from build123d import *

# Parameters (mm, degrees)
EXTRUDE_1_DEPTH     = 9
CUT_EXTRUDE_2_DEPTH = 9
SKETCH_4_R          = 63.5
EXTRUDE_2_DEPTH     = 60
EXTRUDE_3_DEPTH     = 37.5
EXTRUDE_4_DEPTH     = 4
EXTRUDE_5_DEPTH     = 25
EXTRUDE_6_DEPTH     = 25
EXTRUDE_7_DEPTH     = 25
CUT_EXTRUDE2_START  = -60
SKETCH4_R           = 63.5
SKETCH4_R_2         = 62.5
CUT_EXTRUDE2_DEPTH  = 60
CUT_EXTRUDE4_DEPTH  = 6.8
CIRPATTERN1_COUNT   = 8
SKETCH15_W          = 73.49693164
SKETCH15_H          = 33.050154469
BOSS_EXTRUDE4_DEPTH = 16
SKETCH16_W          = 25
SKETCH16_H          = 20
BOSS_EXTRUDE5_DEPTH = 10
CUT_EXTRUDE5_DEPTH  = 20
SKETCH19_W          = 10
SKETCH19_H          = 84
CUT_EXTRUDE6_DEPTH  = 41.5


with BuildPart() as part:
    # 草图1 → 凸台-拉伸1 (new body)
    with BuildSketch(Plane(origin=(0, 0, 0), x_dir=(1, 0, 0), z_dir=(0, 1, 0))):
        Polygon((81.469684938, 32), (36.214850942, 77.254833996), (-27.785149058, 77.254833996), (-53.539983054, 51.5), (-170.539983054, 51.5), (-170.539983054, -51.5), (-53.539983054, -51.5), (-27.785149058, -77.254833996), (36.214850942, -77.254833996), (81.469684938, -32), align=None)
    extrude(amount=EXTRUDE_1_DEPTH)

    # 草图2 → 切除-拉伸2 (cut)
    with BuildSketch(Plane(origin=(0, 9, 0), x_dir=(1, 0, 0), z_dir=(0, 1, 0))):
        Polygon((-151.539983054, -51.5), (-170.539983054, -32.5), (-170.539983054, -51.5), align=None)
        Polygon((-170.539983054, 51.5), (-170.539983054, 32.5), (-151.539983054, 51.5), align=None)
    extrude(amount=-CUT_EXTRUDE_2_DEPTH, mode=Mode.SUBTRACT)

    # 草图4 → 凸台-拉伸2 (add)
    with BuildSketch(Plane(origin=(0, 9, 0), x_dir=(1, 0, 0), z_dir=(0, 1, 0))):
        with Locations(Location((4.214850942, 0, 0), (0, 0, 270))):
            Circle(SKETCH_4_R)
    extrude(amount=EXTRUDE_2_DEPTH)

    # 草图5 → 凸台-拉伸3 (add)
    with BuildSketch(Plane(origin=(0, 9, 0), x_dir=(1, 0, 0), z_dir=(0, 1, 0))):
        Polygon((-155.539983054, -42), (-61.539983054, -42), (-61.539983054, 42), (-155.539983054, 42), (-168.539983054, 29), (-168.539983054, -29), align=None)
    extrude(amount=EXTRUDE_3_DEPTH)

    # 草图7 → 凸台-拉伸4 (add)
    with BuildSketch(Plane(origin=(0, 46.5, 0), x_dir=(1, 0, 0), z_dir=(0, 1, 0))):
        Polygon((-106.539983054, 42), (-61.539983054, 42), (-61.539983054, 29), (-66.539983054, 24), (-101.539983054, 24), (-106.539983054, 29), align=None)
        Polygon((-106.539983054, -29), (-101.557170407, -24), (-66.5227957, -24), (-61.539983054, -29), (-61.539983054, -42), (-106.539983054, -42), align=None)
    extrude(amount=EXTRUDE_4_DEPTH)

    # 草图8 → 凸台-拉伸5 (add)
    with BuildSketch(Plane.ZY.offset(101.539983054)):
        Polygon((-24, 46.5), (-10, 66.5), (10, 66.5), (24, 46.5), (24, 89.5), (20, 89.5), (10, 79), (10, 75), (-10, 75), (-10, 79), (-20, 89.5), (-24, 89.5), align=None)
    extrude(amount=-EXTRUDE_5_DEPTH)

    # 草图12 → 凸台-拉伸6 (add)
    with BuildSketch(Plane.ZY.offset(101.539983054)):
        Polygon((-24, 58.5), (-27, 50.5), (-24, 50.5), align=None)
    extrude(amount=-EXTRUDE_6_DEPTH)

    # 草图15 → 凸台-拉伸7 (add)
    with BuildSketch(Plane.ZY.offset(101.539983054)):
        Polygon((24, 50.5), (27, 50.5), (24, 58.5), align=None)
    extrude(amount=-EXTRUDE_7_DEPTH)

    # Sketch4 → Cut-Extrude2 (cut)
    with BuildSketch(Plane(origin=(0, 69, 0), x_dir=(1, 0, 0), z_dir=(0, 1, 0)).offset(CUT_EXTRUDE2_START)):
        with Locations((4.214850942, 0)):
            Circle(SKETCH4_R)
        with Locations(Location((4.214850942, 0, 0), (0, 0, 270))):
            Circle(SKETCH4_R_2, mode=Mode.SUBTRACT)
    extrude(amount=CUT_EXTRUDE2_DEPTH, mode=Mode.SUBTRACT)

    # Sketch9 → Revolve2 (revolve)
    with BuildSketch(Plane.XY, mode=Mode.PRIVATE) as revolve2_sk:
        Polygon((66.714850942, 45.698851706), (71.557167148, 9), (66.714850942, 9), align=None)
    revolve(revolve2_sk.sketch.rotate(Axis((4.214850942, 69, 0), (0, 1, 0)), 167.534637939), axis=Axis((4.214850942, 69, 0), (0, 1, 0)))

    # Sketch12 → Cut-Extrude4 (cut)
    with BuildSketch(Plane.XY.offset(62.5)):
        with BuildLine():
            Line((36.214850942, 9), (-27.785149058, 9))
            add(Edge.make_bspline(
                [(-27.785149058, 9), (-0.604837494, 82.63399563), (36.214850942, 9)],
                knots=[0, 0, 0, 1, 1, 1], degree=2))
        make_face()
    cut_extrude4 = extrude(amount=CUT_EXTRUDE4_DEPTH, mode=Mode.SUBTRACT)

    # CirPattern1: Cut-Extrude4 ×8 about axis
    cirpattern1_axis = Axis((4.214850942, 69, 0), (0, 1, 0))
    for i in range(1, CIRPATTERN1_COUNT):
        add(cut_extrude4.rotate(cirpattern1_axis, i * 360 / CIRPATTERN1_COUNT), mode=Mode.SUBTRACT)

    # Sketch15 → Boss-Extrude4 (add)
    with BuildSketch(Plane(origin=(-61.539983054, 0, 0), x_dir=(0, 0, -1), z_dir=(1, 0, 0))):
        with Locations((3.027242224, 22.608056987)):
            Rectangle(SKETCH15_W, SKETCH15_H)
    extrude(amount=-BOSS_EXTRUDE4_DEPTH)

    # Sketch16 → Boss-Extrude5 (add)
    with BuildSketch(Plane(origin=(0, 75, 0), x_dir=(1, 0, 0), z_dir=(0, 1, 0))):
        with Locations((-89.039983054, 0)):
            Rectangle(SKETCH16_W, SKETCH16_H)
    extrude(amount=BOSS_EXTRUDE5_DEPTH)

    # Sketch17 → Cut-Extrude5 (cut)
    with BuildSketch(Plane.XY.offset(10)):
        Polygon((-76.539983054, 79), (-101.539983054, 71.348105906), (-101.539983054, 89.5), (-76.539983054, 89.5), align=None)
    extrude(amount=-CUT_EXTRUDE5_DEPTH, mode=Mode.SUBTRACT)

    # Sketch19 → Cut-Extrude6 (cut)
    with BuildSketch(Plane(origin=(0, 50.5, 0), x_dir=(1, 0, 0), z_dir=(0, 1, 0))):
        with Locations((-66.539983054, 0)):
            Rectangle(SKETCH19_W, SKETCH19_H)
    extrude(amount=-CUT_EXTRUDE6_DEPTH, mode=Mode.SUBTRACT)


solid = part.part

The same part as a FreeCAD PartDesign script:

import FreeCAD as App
import Part
import Sketcher

V = App.Vector
Q = App.Units.Quantity


def add_polygon(sketch, points):
    """Adds a closed chain of lines whose ends are joined by coincident constraints."""
    first, n = sketch.GeometryCount, len(points)
    for a, b in zip(points, points[1:] + points[:1]):
        sketch.addGeometry(Part.LineSegment(App.Vector(*a, 0), App.Vector(*b, 0)), False)
    for i in range(n):
        sketch.addConstraint(Sketcher.Constraint("Coincident", first + i, 2, first + (i + 1) % n, 1))

doc = App.newDocument("Part")
body = doc.addObject("PartDesign::Body", "Body")

sketch1 = body.newObject("Sketcher::SketchObject", "Sketch")
sketch1.AttachmentSupport = (doc.getObject("XZ_Plane"), [""])
sketch1.MapMode = "FlatFace"
add_polygon(sketch1, [(81, -32), (36, -77), (-28, -77), (-54, -52), (-171, -52), (-171, 52), (-54, 52), (-28, 77), (36, 77), (81, 32)])
sketch1.addConstraint(Sketcher.Constraint("Horizontal", 1))
sketch1.addConstraint(Sketcher.Constraint("Horizontal", 3))
sketch1.addConstraint(Sketcher.Constraint("Vertical", 4))
sketch1.addConstraint(Sketcher.Constraint("Horizontal", 5))
sketch1.addConstraint(Sketcher.Constraint("Horizontal", 7))
sketch1.addConstraint(Sketcher.Constraint("Vertical", 9))
sketch1.addConstraint(Sketcher.Constraint("Symmetric", 2, 2, 5, 2, -1))
sketch1.addConstraint(Sketcher.Constraint("Symmetric", 1, 2, 6, 2, -1))
sketch1.addConstraint(Sketcher.Constraint("Perpendicular", 0, 2))
sketch1.addConstraint(Sketcher.Constraint("Perpendicular", 2, 6))
sketch1.addConstraint(Sketcher.Constraint("Perpendicular", 6, 8))
sketch1.addConstraint(Sketcher.Constraint("Vertical", 0, 2, 7, 2))
sketch1.addConstraint(Sketcher.Constraint("Equal", 7, 9))
sketch1.addConstraint(Sketcher.Constraint("DistanceX", 1, 2, 1, 1, Q("64 mm")))
sketch1.addConstraint(Sketcher.Constraint("DistanceX", 3, 2, 3, 1, Q("117 mm")))
sketch1.addConstraint(Sketcher.Constraint("DistanceY", 4, 1, 4, 2, Q("103 mm")))
sketch1.addConstraint(Sketcher.Constraint("Distance", 0, Q("64 mm")))
sketch1.addConstraint(Sketcher.Constraint("DistanceX", -1, 1, 0, 2, Q("36.214851 mm")))
pad1 = body.newObject("PartDesign::Pad", "Pad")
pad1.Profile = sketch1
pad1.Length = 9
pad1.Reversed = True

sketch2 = body.newObject("Sketcher::SketchObject", "Sketch001")
sketch2.AttachmentSupport = (doc.getObject("XZ_Plane"), [""])
sketch2.MapMode = "FlatFace"
sketch2.AttachmentOffset = App.Placement(V(0, 0, -9), App.Rotation())
add_polygon(sketch2, [(-152, 52), (-171, 32), (-171, 52)])
add_polygon(sketch2, [(-171, -52), (-171, -32), (-152, -52)])
sketch2.addConstraint(Sketcher.Constraint("Vertical", 1))
sketch2.addConstraint(Sketcher.Constraint("Horizontal", 2))
sketch2.addConstraint(Sketcher.Constraint("Vertical", 3))
sketch2.addConstraint(Sketcher.Constraint("Horizontal", 5))
sketch2.addConstraint(Sketcher.Constraint("Symmetric", 0, 2, 3, 2, -1))
sketch2.addConstraint(Sketcher.Constraint("Symmetric", 2, 2, 4, 2, -1))
sketch2.addConstraint(Sketcher.Constraint("Perpendicular", 0, 4))
sketch2.addConstraint(Sketcher.Constraint("DistanceX", 2, 1, 2, 2, Q("19 mm")))
sketch2.addConstraint(Sketcher.Constraint("DistanceY", 3, 2, 0, 2, Q("65 mm")))
sketch2.addConstraint(Sketcher.Constraint("DistanceX", 0, 2, -1, 1, Q("170.539983 mm")))
pocket1 = body.newObject("PartDesign::Pocket", "Pocket")
pocket1.Profile = sketch2
pocket1.Length = 9
pocket1.Reversed = True

sketch3 = body.newObject("Sketcher::SketchObject", "Sketch002")
sketch3.AttachmentSupport = (doc.getObject("XZ_Plane"), [""])
sketch3.MapMode = "FlatFace"
sketch3.AttachmentOffset = App.Placement(V(0, 0, -9), App.Rotation())
sketch3.addGeometry(Part.Circle(V(4, 0, 0), V(0, 0, 1), 64), False)
sketch3.addConstraint(Sketcher.Constraint("PointOnObject", 0, 3, -1))
sketch3.addConstraint(Sketcher.Constraint("Diameter", 0, Q("127 mm")))
sketch3.addConstraint(Sketcher.Constraint("DistanceX", -1, 1, 0, 3, Q("4.214851 mm")))
pad2 = body.newObject("PartDesign::Pad", "Pad001")
pad2.Profile = sketch3
pad2.Length = 60
pad2.Reversed = True

sketch4 = body.newObject("Sketcher::SketchObject", "Sketch003")
sketch4.AttachmentSupport = (doc.getObject("XZ_Plane"), [""])
sketch4.MapMode = "FlatFace"
sketch4.AttachmentOffset = App.Placement(V(0, 0, -9), App.Rotation())
add_polygon(sketch4, [(-156, 42), (-62, 42), (-62, -42), (-156, -42), (-169, -29), (-169, 29)])
sketch4.addConstraint(Sketcher.Constraint("Horizontal", 0))
sketch4.addConstraint(Sketcher.Constraint("Vertical", 1))
sketch4.addConstraint(Sketcher.Constraint("Horizontal", 2))
sketch4.addConstraint(Sketcher.Constraint("Vertical", 4))
sketch4.addConstraint(Sketcher.Constraint("Symmetric", 2, 2, 5, 2, -1))
sketch4.addConstraint(Sketcher.Constraint("Perpendicular", 3, 5))
sketch4.addConstraint(Sketcher.Constraint("Equal", 3, 5))
sketch4.addConstraint(Sketcher.Constraint("DistanceX", 0, 1, 0, 2, Q("94 mm")))
sketch4.addConstraint(Sketcher.Constraint("DistanceY", 1, 2, 1, 1, Q("84 mm")))
sketch4.addConstraint(Sketcher.Constraint("DistanceY", 4, 1, 4, 2, Q("58 mm")))
sketch4.addConstraint(Sketcher.Constraint("DistanceX", 0, 2, -1, 1, Q("61.539983 mm")))
pad3 = body.newObject("PartDesign::Pad", "Pad002")
pad3.Profile = sketch4
pad3.Length = 37.5
pad3.Reversed = True

sketch5 = body.newObject("Sketcher::SketchObject", "Sketch004")
sketch5.AttachmentSupport = (doc.getObject("XZ_Plane"), [""])
sketch5.MapMode = "FlatFace"
sketch5.AttachmentOffset = App.Placement(V(0, 0, -46.5), App.Rotation())
add_polygon(sketch5, [(-62, -42), (-107, -42), (-107, -29), (-102, -24), (-67, -24), (-62, -29)])
add_polygon(sketch5, [(-102, 24), (-107, 29), (-107, 42), (-62, 42), (-62, 29), (-67, 24)])
sketch5.addConstraint(Sketcher.Constraint("Horizontal", 0))
sketch5.addConstraint(Sketcher.Constraint("Vertical", 1))
sketch5.addConstraint(Sketcher.Constraint("Horizontal", 3))
sketch5.addConstraint(Sketcher.Constraint("Vertical", 5))
sketch5.addConstraint(Sketcher.Constraint("Vertical", 7))
sketch5.addConstraint(Sketcher.Constraint("Horizontal", 8))
sketch5.addConstraint(Sketcher.Constraint("Vertical", 9))
sketch5.addConstraint(Sketcher.Constraint("Horizontal", 11))
sketch5.addConstraint(Sketcher.Constraint("Symmetric", 1, 2, 6, 2, -1))
sketch5.addConstraint(Sketcher.Constraint("Symmetric", 5, 2, 8, 2, -1))
sketch5.addConstraint(Sketcher.Constraint("Perpendicular", 2, 4))
sketch5.addConstraint(Sketcher.Constraint("Horizontal", 1, 2, 4, 2))
sketch5.addConstraint(Sketcher.Constraint("Horizontal", 6, 2, 9, 2))
sketch5.addConstraint(Sketcher.Constraint("Equal", 2, 4))
sketch5.addConstraint(Sketcher.Constraint("Equal", 6, 10))
sketch5.addConstraint(Sketcher.Constraint("DistanceX", 0, 2, 0, 1, Q("45 mm")))
sketch5.addConstraint(Sketcher.Constraint("DistanceX", 3, 1, 3, 2, Q("35 mm")))
sketch5.addConstraint(Sketcher.Constraint("DistanceY", 1, 1, 1, 2, Q("13 mm")))
sketch5.addConstraint(Sketcher.Constraint("DistanceY", 0, 2, -1, 1, Q("42 mm")))
sketch5.addConstraint(Sketcher.Constraint("DistanceY", -1, 1, 10, 2, Q("24 mm")))
sketch5.addConstraint(Sketcher.Constraint("DistanceX", 11, 2, 11, 1, Q("35.034375 mm")))
sketch5.addConstraint(Sketcher.Constraint("DistanceX", 11, 2, -1, 1, Q("101.55717 mm")))
pad4 = body.newObject("PartDesign::Pad", "Pad003")
pad4.Profile = sketch5
pad4.Length = 4
pad4.Reversed = True

sketch6 = body.newObject("Sketcher::SketchObject", "Sketch005")
sketch6.AttachmentSupport = (doc.getObject("YZ_Plane"), [""])
sketch6.MapMode = "FlatFace"
sketch6.AttachmentOffset = App.Placement(V(0, 0, -101.539983), App.Rotation())
add_polygon(sketch6, [(46.5, -24), (66.5, -10), (66.5, 10), (46.5, 24), (89.5, 24), (89.5, 20), (79, 10), (75, 10), (75, -10), (79, -10), (89.5, -20), (89.5, -24)])
sketch6.addConstraint(Sketcher.Constraint("Vertical", 1))
sketch6.addConstraint(Sketcher.Constraint("Horizontal", 3))
sketch6.addConstraint(Sketcher.Constraint("Vertical", 4))
sketch6.addConstraint(Sketcher.Constraint("Horizontal", 6))
sketch6.addConstraint(Sketcher.Constraint("Vertical", 7))
sketch6.addConstraint(Sketcher.Constraint("Horizontal", 8))
sketch6.addConstraint(Sketcher.Constraint("Vertical", 10))
sketch6.addConstraint(Sketcher.Constraint("Horizontal", 11))
sketch6.addConstraint(Sketcher.Constraint("Symmetric", 5, 2, 8, 2, -1))
sketch6.addConstraint(Sketcher.Constraint("Symmetric", 4, 2, 9, 2, -1))
sketch6.addConstraint(Sketcher.Constraint("Symmetric", 2, 2, 11, 2, -1))
sketch6.addConstraint(Sketcher.Constraint("Horizontal", 1, 2, 5, 2))
sketch6.addConstraint(Sketcher.Constraint("Horizontal", 0, 2, 7, 2))
sketch6.addConstraint(Sketcher.Constraint("Equal", 8, 4))
sketch6.addConstraint(Sketcher.Constraint("DistanceX", 3, 1, 3, 2, Q("43 mm")))
sketch6.addConstraint(Sketcher.Constraint("DistanceX", 6, 2, 6, 1, Q("4 mm")))
sketch6.addConstraint(Sketcher.Constraint("DistanceY", 1, 1, 1, 2, Q("20 mm")))
sketch6.addConstraint(Sketcher.Constraint("DistanceY", -1, 1, 2, 2, Q("24 mm")))
sketch6.addConstraint(Sketcher.Constraint("DistanceX", -1, 1, 5, 2, Q("79 mm")))
sketch6.addConstraint(Sketcher.Constraint("DistanceX", 2, 2, 1, 2, Q("20 mm")))
sketch6.addConstraint(Sketcher.Constraint("Distance", 5, Q("14.5 mm")))
pad5 = body.newObject("PartDesign::Pad", "Pad004")
pad5.Profile = sketch6
pad5.Length = 25

sketch7 = body.newObject("Sketcher::SketchObject", "Sketch006")
sketch7.AttachmentSupport = (doc.getObject("YZ_Plane"), [""])
sketch7.MapMode = "FlatFace"
sketch7.AttachmentOffset = App.Placement(V(0, 0, -101.539983), App.Rotation())
add_polygon(sketch7, [(58.5, -24), (50.5, -27), (50.5, -24)])
sketch7.addConstraint(Sketcher.Constraint("Vertical", 1))
sketch7.addConstraint(Sketcher.Constraint("Horizontal", 2))
sketch7.addConstraint(Sketcher.Constraint("DistanceX", 2, 1, 2, 2, Q("8 mm")))
sketch7.addConstraint(Sketcher.Constraint("DistanceY", 1, 1, 1, 2, Q("3 mm")))
sketch7.addConstraint(Sketcher.Constraint("DistanceY", 0, 2, -1, 1, Q("27 mm")))
sketch7.addConstraint(Sketcher.Constraint("DistanceX", -1, 1, 0, 2, Q("50.5 mm")))
pad6 = body.newObject("PartDesign::Pad", "Pad005")
pad6.Profile = sketch7
pad6.Length = 25

sketch8 = body.newObject("Sketcher::SketchObject", "Sketch007")
sketch8.AttachmentSupport = (doc.getObject("YZ_Plane"), [""])
sketch8.MapMode = "FlatFace"
sketch8.AttachmentOffset = App.Placement(V(0, 0, -101.539983), App.Rotation())
add_polygon(sketch8, [(50.5, 24), (50.5, 27), (58.5, 24)])
sketch8.addConstraint(Sketcher.Constraint("Vertical", 0))
sketch8.addConstraint(Sketcher.Constraint("Horizontal", 2))
sketch8.addConstraint(Sketcher.Constraint("DistanceX", 2, 2, 2, 1, Q("8 mm")))
sketch8.addConstraint(Sketcher.Constraint("DistanceY", 0, 1, 0, 2, Q("3 mm")))
sketch8.addConstraint(Sketcher.Constraint("DistanceY", -1, 1, 0, 2, Q("27 mm")))
sketch8.addConstraint(Sketcher.Constraint("DistanceX", -1, 1, 0, 2, Q("50.5 mm")))
pad7 = body.newObject("PartDesign::Pad", "Pad006")
pad7.Profile = sketch8
pad7.Length = 25

sketch9 = body.newObject("Sketcher::SketchObject", "Sketch008")
sketch9.AttachmentSupport = (doc.getObject("XZ_Plane"), [""])
sketch9.MapMode = "FlatFace"
sketch9.AttachmentOffset = App.Placement(V(0, 0, -9), App.Rotation())
sketch9.addGeometry(Part.Circle(V(4, 0, 0), V(0, 0, 1), 64), False)
sketch9.addGeometry(Part.Circle(V(4, 0, 0), V(0, 0, 1), 62), False)
sketch9.addConstraint(Sketcher.Constraint("Coincident", 1, 3, 0, 3))
sketch9.addConstraint(Sketcher.Constraint("PointOnObject", 0, 3, -1))
sketch9.addConstraint(Sketcher.Constraint("Diameter", 0, Q("127 mm")))
sketch9.addConstraint(Sketcher.Constraint("Diameter", 1, Q("125 mm")))
sketch9.addConstraint(Sketcher.Constraint("DistanceX", -1, 1, 0, 3, Q("4.214851 mm")))
pocket2 = body.newObject("PartDesign::Pocket", "Pocket001")
pocket2.Profile = sketch9
pocket2.Length = 60

sketch10 = body.newObject("Sketcher::SketchObject", "Sketch009")
sketch10.AttachmentSupport = (doc.getObject("XY_Plane"), [""])
sketch10.MapMode = "FlatFace"
add_polygon(sketch10, [(71.6, 9), (66.7, 45.7), (66.7, 9)])
sketch10.addGeometry(Part.LineSegment(V(4.2, 9, 0), V(4.2, 45.7, 0)), True)
sketch10.addConstraint(Sketcher.Constraint("Vertical", 1))
sketch10.addConstraint(Sketcher.Constraint("Horizontal", 2))
sketch10.addConstraint(Sketcher.Constraint("Vertical", 3))
sketch10.addConstraint(Sketcher.Constraint("Horizontal", 2, 2, 3, 1))
sketch10.addConstraint(Sketcher.Constraint("Horizontal", 0, 2, 3, 2))
sketch10.addConstraint(Sketcher.Constraint("DistanceY", -1, 1, 1, 2, Q("9 mm")))
sketch10.addConstraint(Sketcher.Constraint("DistanceX", 3, 1, 1, 2, Q("62.5 mm")))
sketch10.addConstraint(Sketcher.Constraint("DistanceY", 1, 2, 1, 1, Q("36.698852 mm")))
sketch10.addConstraint(Sketcher.Constraint("Distance", 0, Q("37.016939 mm")))
sketch10.addConstraint(Sketcher.Constraint("DistanceX", -1, 1, 0, 2, Q("66.714851 mm")))
revolution = body.newObject("PartDesign::Revolution", "Revolution")
revolution.Profile = sketch10
revolution.ReferenceAxis = (sketch10, ["Axis0"])
revolution.Angle = 360

sketch11 = body.newObject("Sketcher::SketchObject", "Sketch010")
sketch11.AttachmentSupport = (doc.getObject("XY_Plane"), [""])
sketch11.MapMode = "FlatFace"
sketch11.AttachmentOffset = App.Placement(V(0, 0, 62.5), App.Rotation())
sketch11.addGeometry(Part.LineSegment(V(-27.785149, 9, 0), V(36.214851, 9, 0)), False)
sketch11.addGeometry(Part.BSplineCurve([V(-27.785149, 9, 0), V(-0.604837, 82.633996, 0), V(36.214851, 9, 0)], [3, 3], [0, 1], False, 2, [1, 1, 1], False), False)
sketch11.addConstraint(Sketcher.Constraint("Block", 1))
sketch11.addConstraint(Sketcher.Constraint("Coincident", 0, 1, 1, 1))
sketch11.addConstraint(Sketcher.Constraint("Coincident", 1, 2, 0, 2))
pocket3 = body.newObject("PartDesign::Pocket", "Pocket002")
pocket3.Profile = sketch11
pocket3.Length = 6.8
pocket3.Reversed = True
doc.recompute()

datumline = body.newObject("PartDesign::Line", "DatumLine")
datumline.Placement = App.Placement(V(4.214851, 0, 0), App.Rotation(V(0, 0, 1), V(0, 1, 0)))
polarpattern = body.newObject("PartDesign::PolarPattern", "PolarPattern")
polarpattern.Originals = [pocket3]
polarpattern.Axis = (datumline, [""])
polarpattern.Angle = 360
polarpattern.Occurrences = 8
body.Tip = polarpattern

sketch12 = body.newObject("Sketcher::SketchObject", "Sketch011")
sketch12.AttachmentSupport = (doc.getObject("YZ_Plane"), [""])
sketch12.MapMode = "FlatFace"
sketch12.AttachmentOffset = App.Placement(V(0, 0, -61.539983), App.Rotation())
add_polygon(sketch12, [(39, 34), (6, 34), (6, -40), (39, -40)])
sketch12.addConstraint(Sketcher.Constraint("Horizontal", 0))
sketch12.addConstraint(Sketcher.Constraint("Vertical", 1))
sketch12.addConstraint(Sketcher.Constraint("Horizontal", 2))
sketch12.addConstraint(Sketcher.Constraint("Vertical", 3))
sketch12.addConstraint(Sketcher.Constraint("DistanceY", 1, 2, 1, 1, Q("73.496932 mm")))
sketch12.addConstraint(Sketcher.Constraint("DistanceX", 0, 2, 0, 1, Q("33.050154 mm")))
sketch12.addConstraint(Sketcher.Constraint("DistanceX", -1, 1, 0, 2, Q("6.08298 mm")))
sketch12.addConstraint(Sketcher.Constraint("DistanceY", 1, 2, -1, 1, Q("39.775708 mm")))
pad8 = body.newObject("PartDesign::Pad", "Pad007")
pad8.Profile = sketch12
pad8.Length = 16
pad8.Reversed = True

sketch13 = body.newObject("Sketcher::SketchObject", "Sketch012")
sketch13.AttachmentSupport = (doc.getObject("XZ_Plane"), [""])
sketch13.MapMode = "FlatFace"
sketch13.AttachmentOffset = App.Placement(V(0, 0, -75), App.Rotation())
add_polygon(sketch13, [(-102, -10), (-102, 10), (-77, 10), (-77, -10)])
sketch13.addConstraint(Sketcher.Constraint("Vertical", 0))
sketch13.addConstraint(Sketcher.Constraint("Horizontal", 1))
sketch13.addConstraint(Sketcher.Constraint("Vertical", 2))
sketch13.addConstraint(Sketcher.Constraint("Horizontal", 3))
sketch13.addConstraint(Sketcher.Constraint("DistanceX", 1, 1, 1, 2, Q("25 mm")))
sketch13.addConstraint(Sketcher.Constraint("DistanceY", 0, 1, 0, 2, Q("20 mm")))
sketch13.addConstraint(Sketcher.Constraint("DistanceY", -1, 1, 0, 2, Q("10 mm")))
sketch13.addConstraint(Sketcher.Constraint("DistanceX", 0, 2, -1, 1, Q("101.539983 mm")))
pad9 = body.newObject("PartDesign::Pad", "Pad008")
pad9.Profile = sketch13
pad9.Length = 10
pad9.Reversed = True

sketch14 = body.newObject("Sketcher::SketchObject", "Sketch013")
sketch14.AttachmentSupport = (doc.getObject("XY_Plane"), [""])
sketch14.MapMode = "FlatFace"
sketch14.AttachmentOffset = App.Placement(V(0, 0, 10), App.Rotation())
add_polygon(sketch14, [(-102, 71), (-77, 79), (-77, 90), (-102, 90)])
sketch14.addConstraint(Sketcher.Constraint("Vertical", 1))
sketch14.addConstraint(Sketcher.Constraint("Horizontal", 2))
sketch14.addConstraint(Sketcher.Constraint("Vertical", 3))
sketch14.addConstraint(Sketcher.Constraint("DistanceX", 2, 2, 2, 1, Q("25 mm")))
sketch14.addConstraint(Sketcher.Constraint("DistanceY", 1, 1, 1, 2, Q("10.5 mm")))
sketch14.addConstraint(Sketcher.Constraint("DistanceY", -1, 1, 0, 2, Q("79 mm")))
sketch14.addConstraint(Sketcher.Constraint("DistanceY", 3, 2, 3, 1, Q("18.151894 mm")))
sketch14.addConstraint(Sketcher.Constraint("DistanceX", 0, 2, -1, 1, Q("76.539983 mm")))
pocket4 = body.newObject("PartDesign::Pocket", "Pocket003")
pocket4.Profile = sketch14
pocket4.Length = 20

sketch15 = body.newObject("Sketcher::SketchObject", "Sketch014")
sketch15.AttachmentSupport = (doc.getObject("XZ_Plane"), [""])
sketch15.MapMode = "FlatFace"
sketch15.AttachmentOffset = App.Placement(V(0, 0, -50.5), App.Rotation())
add_polygon(sketch15, [(-72, -42), (-72, 42), (-62, 42), (-62, -42)])
sketch15.addConstraint(Sketcher.Constraint("Vertical", 0))
sketch15.addConstraint(Sketcher.Constraint("Horizontal", 1))
sketch15.addConstraint(Sketcher.Constraint("Vertical", 2))
sketch15.addConstraint(Sketcher.Constraint("Horizontal", 3))
sketch15.addConstraint(Sketcher.Constraint("DistanceX", 1, 1, 1, 2, Q("10 mm")))
sketch15.addConstraint(Sketcher.Constraint("DistanceY", 0, 1, 0, 2, Q("84 mm")))
sketch15.addConstraint(Sketcher.Constraint("DistanceY", -1, 1, 0, 2, Q("42 mm")))
sketch15.addConstraint(Sketcher.Constraint("DistanceX", 0, 2, -1, 1, Q("71.539983 mm")))
pocket5 = body.newObject("PartDesign::Pocket", "Pocket004")
pocket5.Profile = sketch15
pocket5.Length = 41.5
pocket5.Reversed = True

doc.recompute()
